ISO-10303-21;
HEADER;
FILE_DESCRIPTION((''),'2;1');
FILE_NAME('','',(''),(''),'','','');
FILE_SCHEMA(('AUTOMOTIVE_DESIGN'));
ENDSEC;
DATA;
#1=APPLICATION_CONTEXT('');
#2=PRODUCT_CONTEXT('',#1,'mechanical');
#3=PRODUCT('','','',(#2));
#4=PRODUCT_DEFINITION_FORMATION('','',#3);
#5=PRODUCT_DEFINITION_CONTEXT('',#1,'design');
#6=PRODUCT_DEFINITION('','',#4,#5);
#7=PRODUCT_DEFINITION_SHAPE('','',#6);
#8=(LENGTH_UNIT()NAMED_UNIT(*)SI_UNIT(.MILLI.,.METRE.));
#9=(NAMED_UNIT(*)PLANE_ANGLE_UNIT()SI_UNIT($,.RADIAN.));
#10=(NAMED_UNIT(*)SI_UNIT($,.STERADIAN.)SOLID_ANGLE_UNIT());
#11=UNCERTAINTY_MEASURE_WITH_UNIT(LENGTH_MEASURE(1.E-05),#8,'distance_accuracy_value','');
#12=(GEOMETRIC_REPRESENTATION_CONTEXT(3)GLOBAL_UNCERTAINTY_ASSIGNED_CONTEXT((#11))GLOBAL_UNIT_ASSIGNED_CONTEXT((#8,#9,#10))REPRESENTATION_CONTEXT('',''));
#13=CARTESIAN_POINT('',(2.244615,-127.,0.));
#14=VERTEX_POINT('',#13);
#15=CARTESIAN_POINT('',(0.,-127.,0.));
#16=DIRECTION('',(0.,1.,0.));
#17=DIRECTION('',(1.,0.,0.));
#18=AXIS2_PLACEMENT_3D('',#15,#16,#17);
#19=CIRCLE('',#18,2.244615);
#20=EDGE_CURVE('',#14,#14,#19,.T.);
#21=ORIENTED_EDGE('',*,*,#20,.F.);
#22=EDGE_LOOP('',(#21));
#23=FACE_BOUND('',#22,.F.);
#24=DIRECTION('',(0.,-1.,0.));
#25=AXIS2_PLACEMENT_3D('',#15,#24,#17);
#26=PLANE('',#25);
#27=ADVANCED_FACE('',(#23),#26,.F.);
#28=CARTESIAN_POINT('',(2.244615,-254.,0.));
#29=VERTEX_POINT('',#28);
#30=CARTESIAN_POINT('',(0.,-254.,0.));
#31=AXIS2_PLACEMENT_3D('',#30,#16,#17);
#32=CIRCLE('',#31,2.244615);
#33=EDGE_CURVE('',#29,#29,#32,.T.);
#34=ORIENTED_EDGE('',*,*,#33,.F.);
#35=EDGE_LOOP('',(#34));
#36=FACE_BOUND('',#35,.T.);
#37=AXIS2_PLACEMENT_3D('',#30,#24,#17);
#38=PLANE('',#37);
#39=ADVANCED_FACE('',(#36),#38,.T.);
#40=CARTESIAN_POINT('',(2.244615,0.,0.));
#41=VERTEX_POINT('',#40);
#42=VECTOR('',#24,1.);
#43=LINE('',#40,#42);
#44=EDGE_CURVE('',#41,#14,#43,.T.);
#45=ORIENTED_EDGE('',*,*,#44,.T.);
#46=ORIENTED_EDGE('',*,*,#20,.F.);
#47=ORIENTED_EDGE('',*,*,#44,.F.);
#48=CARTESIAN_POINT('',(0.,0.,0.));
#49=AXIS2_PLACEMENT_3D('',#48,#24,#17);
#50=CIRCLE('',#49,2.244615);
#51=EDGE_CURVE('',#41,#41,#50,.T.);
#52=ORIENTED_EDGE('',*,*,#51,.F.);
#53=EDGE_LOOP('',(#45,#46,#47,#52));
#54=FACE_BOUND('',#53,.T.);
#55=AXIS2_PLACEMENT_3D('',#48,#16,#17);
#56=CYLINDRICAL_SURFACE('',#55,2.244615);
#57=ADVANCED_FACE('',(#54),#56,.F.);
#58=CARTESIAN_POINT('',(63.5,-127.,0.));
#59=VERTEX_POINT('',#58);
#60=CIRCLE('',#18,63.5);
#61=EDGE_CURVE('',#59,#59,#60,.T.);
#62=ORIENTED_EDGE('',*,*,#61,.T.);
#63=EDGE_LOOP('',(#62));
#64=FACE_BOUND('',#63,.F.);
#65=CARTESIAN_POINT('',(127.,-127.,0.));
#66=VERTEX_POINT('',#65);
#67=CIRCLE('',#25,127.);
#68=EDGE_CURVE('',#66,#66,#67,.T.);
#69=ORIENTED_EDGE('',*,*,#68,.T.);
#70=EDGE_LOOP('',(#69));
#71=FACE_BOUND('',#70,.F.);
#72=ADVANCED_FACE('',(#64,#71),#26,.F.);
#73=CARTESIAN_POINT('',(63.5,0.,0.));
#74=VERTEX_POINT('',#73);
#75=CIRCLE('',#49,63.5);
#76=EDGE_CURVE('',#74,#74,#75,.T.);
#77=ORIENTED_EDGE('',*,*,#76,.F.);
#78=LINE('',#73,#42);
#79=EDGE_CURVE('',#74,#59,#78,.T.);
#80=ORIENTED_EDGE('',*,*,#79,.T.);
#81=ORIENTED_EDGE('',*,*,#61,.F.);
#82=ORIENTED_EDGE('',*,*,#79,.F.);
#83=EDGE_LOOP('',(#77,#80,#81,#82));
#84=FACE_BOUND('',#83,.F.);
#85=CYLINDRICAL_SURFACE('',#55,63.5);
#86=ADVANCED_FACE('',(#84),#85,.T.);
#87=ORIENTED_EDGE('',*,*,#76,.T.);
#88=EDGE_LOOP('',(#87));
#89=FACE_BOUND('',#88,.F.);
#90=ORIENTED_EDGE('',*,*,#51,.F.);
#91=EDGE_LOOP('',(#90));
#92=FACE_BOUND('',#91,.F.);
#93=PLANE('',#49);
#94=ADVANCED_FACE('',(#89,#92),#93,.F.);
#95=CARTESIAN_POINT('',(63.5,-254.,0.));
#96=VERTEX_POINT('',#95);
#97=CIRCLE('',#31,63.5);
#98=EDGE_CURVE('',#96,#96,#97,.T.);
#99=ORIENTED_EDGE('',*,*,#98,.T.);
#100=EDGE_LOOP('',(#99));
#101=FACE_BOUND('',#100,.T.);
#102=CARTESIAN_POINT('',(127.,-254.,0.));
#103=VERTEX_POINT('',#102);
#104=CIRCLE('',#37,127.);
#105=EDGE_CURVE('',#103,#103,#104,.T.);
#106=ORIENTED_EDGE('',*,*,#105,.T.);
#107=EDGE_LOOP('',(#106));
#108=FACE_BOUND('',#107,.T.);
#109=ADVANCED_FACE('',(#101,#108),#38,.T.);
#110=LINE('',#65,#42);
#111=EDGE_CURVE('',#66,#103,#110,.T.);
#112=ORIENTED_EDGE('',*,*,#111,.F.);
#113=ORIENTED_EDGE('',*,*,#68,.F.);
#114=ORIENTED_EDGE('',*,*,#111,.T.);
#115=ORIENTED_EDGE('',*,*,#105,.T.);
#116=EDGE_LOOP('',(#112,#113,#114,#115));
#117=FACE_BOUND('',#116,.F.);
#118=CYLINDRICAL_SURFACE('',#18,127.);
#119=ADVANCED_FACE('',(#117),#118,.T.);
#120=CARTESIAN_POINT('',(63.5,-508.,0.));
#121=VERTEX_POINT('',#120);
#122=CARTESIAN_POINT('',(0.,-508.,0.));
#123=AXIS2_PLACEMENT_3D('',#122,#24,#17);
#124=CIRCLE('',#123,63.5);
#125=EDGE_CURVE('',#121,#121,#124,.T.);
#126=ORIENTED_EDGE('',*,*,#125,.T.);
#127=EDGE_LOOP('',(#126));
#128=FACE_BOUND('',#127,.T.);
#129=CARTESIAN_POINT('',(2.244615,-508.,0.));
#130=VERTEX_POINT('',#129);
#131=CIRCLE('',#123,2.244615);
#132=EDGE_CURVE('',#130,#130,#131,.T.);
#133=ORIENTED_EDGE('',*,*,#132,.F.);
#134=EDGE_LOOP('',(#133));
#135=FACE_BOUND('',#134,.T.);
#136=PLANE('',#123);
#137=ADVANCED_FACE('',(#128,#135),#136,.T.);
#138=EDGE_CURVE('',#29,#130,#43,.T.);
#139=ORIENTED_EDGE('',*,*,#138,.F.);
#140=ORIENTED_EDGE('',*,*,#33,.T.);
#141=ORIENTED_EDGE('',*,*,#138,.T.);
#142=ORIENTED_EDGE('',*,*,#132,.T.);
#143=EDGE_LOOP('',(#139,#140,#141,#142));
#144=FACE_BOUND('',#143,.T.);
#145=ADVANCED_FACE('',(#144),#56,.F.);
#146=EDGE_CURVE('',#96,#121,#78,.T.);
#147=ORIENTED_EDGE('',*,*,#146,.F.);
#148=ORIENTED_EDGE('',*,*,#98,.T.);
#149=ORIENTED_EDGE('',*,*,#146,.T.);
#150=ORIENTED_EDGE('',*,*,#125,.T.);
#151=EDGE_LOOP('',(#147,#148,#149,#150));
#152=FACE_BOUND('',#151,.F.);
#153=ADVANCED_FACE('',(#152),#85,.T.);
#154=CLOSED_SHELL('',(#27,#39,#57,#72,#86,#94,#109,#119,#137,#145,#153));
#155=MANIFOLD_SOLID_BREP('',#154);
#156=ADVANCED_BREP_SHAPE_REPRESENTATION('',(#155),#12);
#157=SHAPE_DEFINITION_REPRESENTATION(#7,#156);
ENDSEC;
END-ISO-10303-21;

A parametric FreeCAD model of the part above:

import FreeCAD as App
import Part
import Sketcher

V = App.Vector
Q = App.Units.Quantity

doc = App.newDocument("Part")
body = doc.addObject("PartDesign::Body", "Body")

# Sketch on XZ plane
sketch1 = doc.addObject("Sketcher::SketchObject", "Sketch")
body.addObject(sketch1)
sketch1.AttachmentSupport = (doc.XZ_Plane, [""])
sketch1.MapMode = "FlatFace"
sketch1.addGeometry(Part.Circle(V(0, 0, 0), V(0, 0, 1), 63.5), False)
sketch1.addGeometry(Part.Circle(V(0, 0, 0), V(0, 0, 1), 2.244615), False)
sketch1.addConstraint(Sketcher.Constraint("Coincident", 0, 3, -1, 1))
sketch1.addConstraint(Sketcher.Constraint("Coincident", 1, 3, -1, 1))
sketch1.addConstraint(Sketcher.Constraint("Diameter", 0, Q("5 in")))
sketch1.addConstraint(Sketcher.Constraint("Diameter", 1, 4.48923))
pad1 = doc.addObject("PartDesign::Pad", "Pad")
body.addObject(pad1)
pad1.Profile = sketch1
pad1.Length = Q("20 in")

# Sketch on XZ plane
sketch2 = doc.addObject("Sketcher::SketchObject", "Sketch001")
body.addObject(sketch2)
sketch2.AttachmentSupport = (doc.XZ_Plane, [""])
sketch2.MapMode = "FlatFace"
sketch2.AttachmentOffset = App.Placement(V(0, 0, 5 * 25.4), App.Rotation())
sketch2.addGeometry(Part.Circle(V(0, 0, 0), V(0, 0, 1), 127), False)
sketch2.addConstraint(Sketcher.Constraint("Coincident", 0, 3, -1, 1))
sketch2.addConstraint(Sketcher.Constraint("Diameter", 0, Q("10 in")))
pad2 = doc.addObject("PartDesign::Pad", "Pad001")
body.addObject(pad2)
pad2.Profile = sketch2
pad2.Length = Q("5 in")

doc.recompute()
